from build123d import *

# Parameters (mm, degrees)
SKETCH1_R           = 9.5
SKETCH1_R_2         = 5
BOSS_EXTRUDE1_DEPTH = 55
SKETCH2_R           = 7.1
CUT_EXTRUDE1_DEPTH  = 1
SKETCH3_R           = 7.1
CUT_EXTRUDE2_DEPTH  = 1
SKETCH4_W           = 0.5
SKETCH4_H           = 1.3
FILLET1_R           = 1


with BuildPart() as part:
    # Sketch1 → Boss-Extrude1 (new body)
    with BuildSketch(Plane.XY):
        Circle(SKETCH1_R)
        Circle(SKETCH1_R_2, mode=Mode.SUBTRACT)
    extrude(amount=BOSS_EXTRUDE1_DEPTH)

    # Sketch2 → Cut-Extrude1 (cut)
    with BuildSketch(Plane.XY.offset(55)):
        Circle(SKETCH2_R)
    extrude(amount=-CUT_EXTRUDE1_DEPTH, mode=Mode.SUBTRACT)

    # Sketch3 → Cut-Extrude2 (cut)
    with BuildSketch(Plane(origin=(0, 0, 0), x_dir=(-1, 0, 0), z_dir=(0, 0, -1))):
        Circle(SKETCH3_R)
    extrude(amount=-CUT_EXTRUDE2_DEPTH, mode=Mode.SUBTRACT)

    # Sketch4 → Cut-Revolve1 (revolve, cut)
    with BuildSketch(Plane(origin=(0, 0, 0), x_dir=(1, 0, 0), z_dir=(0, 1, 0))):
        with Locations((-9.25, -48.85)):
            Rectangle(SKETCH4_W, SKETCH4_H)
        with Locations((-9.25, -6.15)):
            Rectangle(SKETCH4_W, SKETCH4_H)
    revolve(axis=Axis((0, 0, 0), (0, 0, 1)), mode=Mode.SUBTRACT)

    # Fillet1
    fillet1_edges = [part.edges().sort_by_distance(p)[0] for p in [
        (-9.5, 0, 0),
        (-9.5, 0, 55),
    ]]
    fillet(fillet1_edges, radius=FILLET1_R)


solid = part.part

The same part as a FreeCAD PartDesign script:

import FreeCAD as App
import Part
import Sketcher
from FreeCAD import Vector


def edges_at(feature, points):
    """Names of the edges that pass closest to the given points."""
    edges = feature.Shape.Edges
    near = lambda p: min(range(len(edges)), key=lambda i: edges[i].distToShape(Part.Vertex(*p))[0])
    return sorted({f"Edge{near(p) + 1}" for p in points})


def add_polygon(sketch, points):
    """Adds a closed chain of lines whose ends are joined by coincident constraints."""
    first, n = sketch.GeometryCount, len(points)
    for a, b in zip(points, points[1:] + points[:1]):
        sketch.addGeometry(Part.LineSegment(App.Vector(*a, 0), App.Vector(*b, 0)), False)
    for i in range(n):
        sketch.addConstraint(Sketcher.Constraint("Coincident", first + i, 2, first + (i + 1) % n, 1))

doc = App.newDocument("Part")
params = doc.addObject("Spreadsheet::Sheet", "Params")
for row, (alias, value) in enumerate([
    ("sketch1_diameter", "19 mm"),
    ("sketch1_diameter2", "10 mm"),
    ("pad1_length", "55 mm"),
    ("sketch2_diameter", "14.2 mm"),
    ("pocket1_length", "1 mm"),
    ("sketch3_diameter", "14.2 mm"),
    ("pocket2_length", "1 mm"),
    ("sketch4_width", "0.5 mm"),
    ("sketch4_height", "1.3 mm"),
    ("groove_angle", "360 deg"),
    ("fillet_radius", "1 mm"),
], start=1):
    params.set(f"A{row}", alias)
    params.set(f"B{row}", "=" + value)
    params.setAlias(f"B{row}", alias)

body = doc.addObject("PartDesign::Body", "Body")

sketch1 = doc.addObject("Sketcher::SketchObject", "Sketch")
body.addObject(sketch1)
sketch1.AttachmentSupport = (doc.XY_Plane, [""])
sketch1.MapMode = "FlatFace"
sketch1.addGeometry([
    Part.Circle(Vector(0, 0, 0), Vector(0, 0, 1), 10),
    Part.Circle(Vector(0, 0, 0), Vector(0, 0, 1), 5),
], False)
sketch1.addConstraint([
    Sketcher.Constraint("Coincident", 0, 3, -1, 1),
    Sketcher.Constraint("Coincident", 1, 3, -1, 1),
    Sketcher.Constraint("Diameter", 0, 19.0),
    Sketcher.Constraint("Diameter", 1, 10.0),
])
sketch1.setExpression("Constraints[2]", "Params.sketch1_diameter")
sketch1.setExpression("Constraints[3]", "Params.sketch1_diameter2")
pad1 = doc.addObject("PartDesign::Pad", "Pad")
body.addObject(pad1)
pad1.Profile = sketch1
pad1.setExpression("Length", "Params.pad1_length")

sketch2 = doc.addObject("Sketcher::SketchObject", "Sketch001")
body.addObject(sketch2)
sketch2.AttachmentSupport = (doc.XY_Plane, [""])
sketch2.MapMode = "FlatFace"
sketch2.AttachmentOffset = App.Placement(Vector(0, 0, 55), App.Rotation())
sketch2.addGeometry(Part.Circle(Vector(0, 0, 0), Vector(0, 0, 1), 7), False)
sketch2.addConstraint([
    Sketcher.Constraint("Coincident", 0, 3, -1, 1),
    Sketcher.Constraint("Diameter", 0, 14.2),
])
sketch2.setExpression("Constraints[1]", "Params.sketch2_diameter")
pocket1 = doc.addObject("PartDesign::Pocket", "Pocket")
body.addObject(pocket1)
pocket1.Profile = sketch2
pocket1.setExpression("Length", "Params.pocket1_length")

sketch3 = doc.addObject("Sketcher::SketchObject", "Sketch002")
body.addObject(sketch3)
sketch3.AttachmentSupport = (doc.XY_Plane, [""])
sketch3.MapMode = "FlatFace"
sketch3.addGeometry(Part.Circle(Vector(0, 0, 0), Vector(0, 0, 1), 7), False)
sketch3.addConstraint([
    Sketcher.Constraint("Coincident", 0, 3, -1, 1),
    Sketcher.Constraint("Diameter", 0, 14.2),
])
sketch3.setExpression("Constraints[1]", "Params.sketch3_diameter")
pocket2 = doc.addObject("PartDesign::Pocket", "Pocket001")
body.addObject(pocket2)
pocket2.Profile = sketch3
pocket2.setExpression("Length", "Params.pocket2_length")
pocket2.Reversed = True

sketch4 = doc.addObject("Sketcher::SketchObject", "Sketch003")
body.addObject(sketch4)
sketch4.AttachmentSupport = (doc.XZ_Plane, [""])
sketch4.MapMode = "FlatFace"
add_polygon(sketch4, [(-9.5, 48.2), (-9.5, 49.5), (-9, 49.5), (-9, 48.2)])
add_polygon(sketch4, [(-9.5, 5.5), (-9.5, 6.8), (-9, 6.8), (-9, 5.5)])
sketch4.addConstraint([
    Sketcher.Constraint("Vertical", 0),
    Sketcher.Constraint("Horizontal", 1),
    Sketcher.Constraint("Vertical", 2),
    Sketcher.Constraint("Horizontal", 3),
    Sketcher.Constraint("Vertical", 4),
    Sketcher.Constraint("Horizontal", 5),
    Sketcher.Constraint("Vertical", 6),
    Sketcher.Constraint("Horizontal", 7),
    Sketcher.Constraint("Vertical", 3, 2, 4, 2),
    Sketcher.Constraint("Vertical", 2, 2, 5, 2),
    Sketcher.Constraint("Equal", 2, 4),
    Sketcher.Constraint("DistanceX", 1, 1, 1, 2, 0.5),
    Sketcher.Constraint("DistanceY", 0, 1, 0, 2, 1.3),
    Sketcher.Constraint("DistanceX", 1, 2, -1, 1, 9.0),
    Sketcher.Constraint("DistanceY", 6, 2, 1, 2, 44.0),
    Sketcher.Constraint("DistanceY", -1, 1, 0, 2, 49.5),
])
sketch4.setExpression("Constraints[19]", "Params.sketch4_width")
sketch4.setExpression("Constraints[20]", "Params.sketch4_height")
groove = doc.addObject("PartDesign::Groove", "Groove")
body.addObject(groove)
groove.Profile = sketch4
groove.ReferenceAxis = (sketch4, ["V_Axis"])
groove.setExpression("Angle", "Params.groove_angle")
doc.recompute()

fillet = doc.addObject("PartDesign::Fillet", "Fillet")
body.addObject(fillet)
fillet.Base = (groove, edges_at(groove, [(-9.5, 0, 0), (-9.5, 0, 55)]))
fillet.setExpression("Radius", "Params.fillet_radius")

doc.recompute()
